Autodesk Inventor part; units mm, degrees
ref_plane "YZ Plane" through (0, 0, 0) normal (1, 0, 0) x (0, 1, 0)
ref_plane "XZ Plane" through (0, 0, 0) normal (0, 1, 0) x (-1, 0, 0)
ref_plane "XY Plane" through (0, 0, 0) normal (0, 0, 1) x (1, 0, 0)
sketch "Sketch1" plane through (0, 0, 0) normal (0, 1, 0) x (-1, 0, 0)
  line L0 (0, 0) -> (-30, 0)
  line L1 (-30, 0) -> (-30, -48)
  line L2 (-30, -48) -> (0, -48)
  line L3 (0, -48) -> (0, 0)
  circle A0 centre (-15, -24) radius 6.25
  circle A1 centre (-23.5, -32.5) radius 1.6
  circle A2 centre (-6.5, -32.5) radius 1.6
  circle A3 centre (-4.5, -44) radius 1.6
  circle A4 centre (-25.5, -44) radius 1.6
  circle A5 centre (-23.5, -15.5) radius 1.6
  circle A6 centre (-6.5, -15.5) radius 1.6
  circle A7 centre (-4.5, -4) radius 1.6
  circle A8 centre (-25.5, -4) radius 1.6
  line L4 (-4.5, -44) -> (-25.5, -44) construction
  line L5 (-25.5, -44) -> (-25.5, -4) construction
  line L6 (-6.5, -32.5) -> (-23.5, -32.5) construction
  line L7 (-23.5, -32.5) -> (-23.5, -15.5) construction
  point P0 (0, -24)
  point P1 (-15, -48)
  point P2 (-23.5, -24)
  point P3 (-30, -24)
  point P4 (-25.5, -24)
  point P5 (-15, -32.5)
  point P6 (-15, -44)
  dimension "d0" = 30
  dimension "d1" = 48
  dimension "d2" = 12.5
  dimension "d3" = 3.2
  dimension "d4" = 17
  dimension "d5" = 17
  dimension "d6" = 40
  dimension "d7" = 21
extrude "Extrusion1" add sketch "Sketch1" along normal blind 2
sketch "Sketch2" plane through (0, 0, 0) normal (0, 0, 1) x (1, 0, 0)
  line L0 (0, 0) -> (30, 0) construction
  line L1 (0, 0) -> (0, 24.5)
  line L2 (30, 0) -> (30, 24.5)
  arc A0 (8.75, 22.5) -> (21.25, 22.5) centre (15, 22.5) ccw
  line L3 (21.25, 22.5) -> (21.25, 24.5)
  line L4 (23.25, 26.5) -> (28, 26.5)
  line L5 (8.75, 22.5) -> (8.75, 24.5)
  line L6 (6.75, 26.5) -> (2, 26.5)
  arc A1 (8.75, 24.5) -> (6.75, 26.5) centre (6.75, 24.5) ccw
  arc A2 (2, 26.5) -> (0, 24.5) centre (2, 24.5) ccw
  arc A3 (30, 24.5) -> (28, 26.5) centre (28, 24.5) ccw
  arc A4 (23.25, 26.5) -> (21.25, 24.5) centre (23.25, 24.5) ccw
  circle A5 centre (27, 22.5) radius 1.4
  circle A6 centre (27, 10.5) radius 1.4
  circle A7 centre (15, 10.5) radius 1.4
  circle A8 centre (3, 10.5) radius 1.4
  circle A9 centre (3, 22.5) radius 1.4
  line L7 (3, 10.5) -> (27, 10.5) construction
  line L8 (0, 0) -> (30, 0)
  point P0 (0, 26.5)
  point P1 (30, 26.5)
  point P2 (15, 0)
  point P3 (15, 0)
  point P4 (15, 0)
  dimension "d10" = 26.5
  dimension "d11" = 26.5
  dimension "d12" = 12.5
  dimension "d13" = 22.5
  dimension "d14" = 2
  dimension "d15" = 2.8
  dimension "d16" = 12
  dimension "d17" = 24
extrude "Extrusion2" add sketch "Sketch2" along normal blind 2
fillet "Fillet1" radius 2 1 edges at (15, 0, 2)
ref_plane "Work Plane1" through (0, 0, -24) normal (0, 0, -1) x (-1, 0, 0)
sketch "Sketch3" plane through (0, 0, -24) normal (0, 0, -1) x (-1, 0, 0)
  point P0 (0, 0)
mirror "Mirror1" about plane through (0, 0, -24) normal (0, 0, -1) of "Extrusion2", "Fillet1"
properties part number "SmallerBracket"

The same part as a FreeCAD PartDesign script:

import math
import FreeCAD as App
import Part
import Sketcher

V = App.Vector


def edges_at(feature, points):
    """Names of the edges that pass closest to the given points."""
    edges = feature.Shape.Edges
    near = lambda p: min(range(len(edges)), key=lambda i: edges[i].distToShape(Part.Vertex(*p))[0])
    return sorted({f"Edge{near(p) + 1}" for p in points})


def add_polygon(sketch, points):
    """Adds a closed chain of lines whose ends are joined by coincident constraints."""
    first, n = sketch.GeometryCount, len(points)
    for a, b in zip(points, points[1:] + points[:1]):
        sketch.addGeometry(Part.LineSegment(App.Vector(*a, 0), App.Vector(*b, 0)), False)
    for i in range(n):
        sketch.addConstraint(Sketcher.Constraint("Coincident", first + i, 2, first + (i + 1) % n, 1))

doc = App.newDocument("Part")
body = doc.addObject("PartDesign::Body", "Body")

sketch1 = body.newObject("Sketcher::SketchObject", "Sketch")
sketch1.AttachmentSupport = (doc.getObject("XZ_Plane"), [""])
sketch1.MapMode = "FlatFace"
add_polygon(sketch1, [(0, -48), (0, 0), (30, 0), (30, -48)])
sketch1.addGeometry(Part.Circle(V(25.5, -44, 0), V(0, 0, 1), 1.6), False)
sketch1.addGeometry(Part.Circle(V(23.5, -32.5, 0), V(0, 0, 1), 1.6), False)
sketch1.addGeometry(Part.Circle(V(4.5, -44, 0), V(0, 0, 1), 1.6), False)
sketch1.addGeometry(Part.Circle(V(6.5, -32.5, 0), V(0, 0, 1), 1.6), False)
sketch1.addGeometry(Part.Circle(V(23.5, -15.5, 0), V(0, 0, 1), 1.6), False)
sketch1.addGeometry(Part.Circle(V(25.5, -4, 0), V(0, 0, 1), 1.6), False)
sketch1.addGeometry(Part.Circle(V(15, -24, 0), V(0, 0, 1), 6.25), False)
sketch1.addGeometry(Part.Circle(V(6.5, -15.5, 0), V(0, 0, 1), 1.6), False)
sketch1.addGeometry(Part.Circle(V(4.5, -4, 0), V(0, 0, 1), 1.6), False)
sketch1.addConstraint([
    Sketcher.Constraint("Vertical", 0),
    Sketcher.Constraint("Horizontal", 1),
    Sketcher.Constraint("Vertical", 2),
    Sketcher.Constraint("Horizontal", 3),
    Sketcher.Constraint("Coincident", 0, 2, -1, 1),
    Sketcher.Constraint("Equal", 4, 5),
    Sketcher.Constraint("Equal", 5, 6),
    Sketcher.Constraint("Equal", 6, 7),
    Sketcher.Constraint("Equal", 7, 8),
    Sketcher.Constraint("Equal", 8, 9),
    Sketcher.Constraint("Equal", 9, 11),
    Sketcher.Constraint("Equal", 11, 12),
    Sketcher.Constraint("Horizontal", 4, 3, 6, 3),
    Sketcher.Constraint("Horizontal", 5, 3, 7, 3),
    Sketcher.Constraint("Horizontal", 8, 3, 11, 3),
    Sketcher.Constraint("Horizontal", 9, 3, 12, 3),
    Sketcher.Constraint("Vertical", 5, 3, 8, 3),
    Sketcher.Constraint("Vertical", 4, 3, 9, 3),
    Sketcher.Constraint("Vertical", 7, 3, 11, 3),
    Sketcher.Constraint("Vertical", 6, 3, 12, 3),
    Sketcher.Constraint("Diameter", 4, 3.2),
    Sketcher.Constraint("Diameter", 10, 12.5),
    Sketcher.Constraint("DistanceX", 1, 1, 1, 2, 30.0),
    Sketcher.Constraint("DistanceY", 0, 1, 0, 2, 48.0),
    Sketcher.Constraint("DistanceX", 6, 3, 4, 3, 21.0),
    Sketcher.Constraint("DistanceX", 7, 3, 5, 3, 17.0),
    Sketcher.Constraint("DistanceY", 5, 3, 8, 3, 17.0),
    Sketcher.Constraint("DistanceY", 4, 3, 9, 3, 40.0),
    Sketcher.Constraint("DistanceY", 4, 3, -1, 1, 44.0),
    Sketcher.Constraint("DistanceX", -1, 1, 10, 3, 15.0),
    Sketcher.Constraint("DistanceY", 10, 3, -1, 1, 24.0),
    Sketcher.Constraint("DistanceX", 5, 3, 4, 3, 2.0),
    Sketcher.Constraint("DistanceX", -1, 1, 4, 3, 25.5),
    Sketcher.Constraint("DistanceY", 5, 3, -1, 1, 32.5),
])
pad1 = body.newObject("PartDesign::Pad", "Pad")
pad1.Profile = sketch1
pad1.Length = 2
pad1.Reversed = True

sketch2 = body.newObject("Sketcher::SketchObject", "Sketch001")
sketch2.AttachmentSupport = (doc.getObject("XY_Plane"), [""])
sketch2.MapMode = "FlatFace"
sketch2.addGeometry([
    Part.LineSegment(V(0, 24.5, 0), V(0, 0, 0)),
    Part.LineSegment(V(0, 0, 0), V(30, 0, 0)),
    Part.LineSegment(V(30, 0, 0), V(30, 24.5, 0)),
    Part.ArcOfCircle(Part.Circle(V(28, 24.5, 0), V(0, 0, 1), 2), math.radians(0), math.radians(90)),
    Part.LineSegment(V(28, 26.5, 0), V(23.25, 26.5, 0)),
    Part.ArcOfCircle(Part.Circle(V(23.25, 24.5, 0), V(0, 0, 1), 2), math.radians(90), math.radians(180)),
    Part.LineSegment(V(21.25, 24.5, 0), V(21.25, 22.5, 0)),
    Part.ArcOfCircle(Part.Circle(V(15, 22.5, 0), V(0, 0, 1), 6.25), math.radians(180), math.radians(360)),
    Part.LineSegment(V(8.75, 22.5, 0), V(8.75, 24.5, 0)),
    Part.ArcOfCircle(Part.Circle(V(6.75, 24.5, 0), V(0, 0, 1), 2), math.radians(0), math.radians(90)),
    Part.LineSegment(V(6.75, 26.5, 0), V(2, 26.5, 0)),
    Part.ArcOfCircle(Part.Circle(V(2, 24.5, 0), V(0, 0, 1), 2), math.radians(90), math.radians(180)),
    Part.Circle(V(3, 10.5, 0), V(0, 0, 1), 1.4),
    Part.Circle(V(15, 10.5, 0), V(0, 0, 1), 1.4),
    Part.Circle(V(27, 10.5, 0), V(0, 0, 1), 1.4),
    Part.Circle(V(3, 22.5, 0), V(0, 0, 1), 1.4),
    Part.Circle(V(27, 22.5, 0), V(0, 0, 1), 1.4),
], False)
sketch2.addConstraint([
    Sketcher.Constraint("Coincident", 0, 2, 1, 1),
    Sketcher.Constraint("Coincident", 1, 2, 2, 1),
    Sketcher.Constraint("Tangent", 2, 2, 3, 1),
    Sketcher.Constraint("Tangent", 3, 2, 4, 1),
    Sketcher.Constraint("Tangent", 4, 2, 5, 1),
    Sketcher.Constraint("Tangent", 5, 2, 6, 1),
    Sketcher.Constraint("Tangent", 6, 2, 7, 2),
    Sketcher.Constraint("Tangent", 7, 1, 8, 1),
    Sketcher.Constraint("Tangent", 8, 2, 9, 1),
    Sketcher.Constraint("Tangent", 9, 2, 10, 1),
    Sketcher.Constraint("Tangent", 10, 2, 11, 1),
    Sketcher.Constraint("Tangent", 11, 2, 0, 1),
    Sketcher.Constraint("Vertical", 0),
    Sketcher.Constraint("Horizontal", 1),
    Sketcher.Constraint("Vertical", 2),
    Sketcher.Constraint("Horizontal", 4),
    Sketcher.Constraint("Vertical", 6),
    Sketcher.Constraint("Vertical", 8),
    Sketcher.Constraint("Horizontal", 10),
    Sketcher.Constraint("Coincident", 0, 2, -1, 1),
    Sketcher.Constraint("Equal", 3, 5),
    Sketcher.Constraint("Equal", 5, 9),
    Sketcher.Constraint("Equal", 9, 11),
    Sketcher.Constraint("Equal", 12, 13),
    Sketcher.Constraint("Equal", 13, 14),
    Sketcher.Constraint("Equal", 14, 15),
    Sketcher.Constraint("Equal", 15, 16),
    Sketcher.Constraint("Horizontal", 5, 3, 9, 3),
    Sketcher.Constraint("Horizontal", 12, 3, 13, 3),
    Sketcher.Constraint("Horizontal", 13, 3, 14, 3),
    Sketcher.Constraint("Horizontal", 7, 3, 15, 3),
    Sketcher.Constraint("Horizontal", 15, 3, 16, 3),
    Sketcher.Constraint("Vertical", 7, 3, 13, 3),
    Sketcher.Constraint("Vertical", 12, 3, 15, 3),
    Sketcher.Constraint("Vertical", 14, 3, 16, 3),
    Sketcher.Constraint("Equal", 4, 10),
    Sketcher.Constraint("Radius", 3, 2.0),
    Sketcher.Constraint("Diameter", 12, 2.8),
    Sketcher.Constraint("DistanceY", 6, 2, 6, 1, 2.0),
    Sketcher.Constraint("Radius", 7, 6.25),
    Sketcher.Constraint("DistanceX", 12, 3, 7, 3, 12.0),
    Sketcher.Constraint("DistanceY", 12, 3, 7, 3, 12.0),
    Sketcher.Constraint("DistanceX", 13, 3, 14, 3, 12.0),
    Sketcher.Constraint("DistanceY", -1, 1, 7, 3, 22.5),
    Sketcher.Constraint("DistanceX", 1, 1, 1, 2, 30.0),
])
pad2 = body.newObject("PartDesign::Pad", "Pad001")
pad2.Profile = sketch2
pad2.Length = 2
doc.recompute()

fillet = body.newObject("PartDesign::Fillet", "Fillet")
fillet.Base = (pad2, edges_at(pad2, [(15, 0, 2)]))
fillet.Radius = 2
doc.recompute()

datumplane = body.newObject("PartDesign::Plane", "DatumPlane")
datumplane.AttachmentSupport = (doc.getObject("XY_Plane"), [""])
datumplane.MapMode = "FlatFace"
datumplane.AttachmentOffset = App.Placement(V(0, 0, -24), App.Rotation())
mirrored = body.newObject("PartDesign::Mirrored", "Mirrored")
mirrored.Originals = [pad2, fillet]
mirrored.MirrorPlane = (datumplane, [""])
body.Tip = mirrored

doc.recompute()
